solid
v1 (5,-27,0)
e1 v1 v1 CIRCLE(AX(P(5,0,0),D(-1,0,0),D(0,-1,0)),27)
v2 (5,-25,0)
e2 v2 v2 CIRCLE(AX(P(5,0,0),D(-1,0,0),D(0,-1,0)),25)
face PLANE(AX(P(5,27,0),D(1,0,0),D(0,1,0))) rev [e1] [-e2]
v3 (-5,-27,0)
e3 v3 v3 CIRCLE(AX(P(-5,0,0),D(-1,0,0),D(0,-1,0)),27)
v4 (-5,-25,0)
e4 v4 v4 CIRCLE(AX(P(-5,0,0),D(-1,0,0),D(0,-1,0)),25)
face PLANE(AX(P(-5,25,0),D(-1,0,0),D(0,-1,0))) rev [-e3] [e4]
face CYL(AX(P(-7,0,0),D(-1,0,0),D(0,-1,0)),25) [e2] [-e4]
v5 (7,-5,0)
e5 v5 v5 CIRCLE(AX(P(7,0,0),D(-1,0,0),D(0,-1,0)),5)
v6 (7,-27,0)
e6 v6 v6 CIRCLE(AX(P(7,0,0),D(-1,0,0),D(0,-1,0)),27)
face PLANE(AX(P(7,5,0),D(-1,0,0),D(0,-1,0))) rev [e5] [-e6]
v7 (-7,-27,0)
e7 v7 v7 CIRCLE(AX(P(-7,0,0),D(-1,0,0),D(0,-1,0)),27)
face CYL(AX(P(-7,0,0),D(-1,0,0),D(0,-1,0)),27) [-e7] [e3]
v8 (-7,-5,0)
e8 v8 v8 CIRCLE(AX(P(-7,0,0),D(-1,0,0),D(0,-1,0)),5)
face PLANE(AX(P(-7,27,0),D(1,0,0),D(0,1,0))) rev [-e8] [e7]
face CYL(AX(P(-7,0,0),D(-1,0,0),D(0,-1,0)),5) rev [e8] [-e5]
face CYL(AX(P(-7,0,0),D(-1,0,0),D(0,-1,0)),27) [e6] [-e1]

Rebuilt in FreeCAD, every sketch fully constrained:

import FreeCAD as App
import Part
import Sketcher

V = App.Vector

doc = App.newDocument("Part")
body = doc.addObject("PartDesign::Body", "Body")

sketch1 = body.newObject("Sketcher::SketchObject", "Sketch")
sketch1.AttachmentSupport = (doc.getObject("XY_Plane"), [""])
sketch1.MapMode = "FlatFace"
sketch1.addGeometry([
    Part.LineSegment(V(7, 5, 0), V(7, 27, 0)),
    Part.LineSegment(V(7, 27, 0), V(5, 27, 0)),
    Part.LineSegment(V(5, 27, 0), V(5, 25, 0)),
    Part.LineSegment(V(5, 25, 0), V(-5, 25, 0)),
    Part.LineSegment(V(-5, 25, 0), V(-5, 27, 0)),
    Part.LineSegment(V(-5, 27, 0), V(-7, 27, 0)),
    Part.LineSegment(V(-7, 27, 0), V(-7, 5, 0)),
    Part.LineSegment(V(-7, 5, 0), V(7, 5, 0)),
], False)
sketch1.addConstraint([
    Sketcher.Constraint("Coincident", 0, 2, 1, 1),
    Sketcher.Constraint("Coincident", 1, 2, 2, 1),
    Sketcher.Constraint("Coincident", 2, 2, 3, 1),
    Sketcher.Constraint("Coincident", 3, 2, 4, 1),
    Sketcher.Constraint("Coincident", 4, 2, 5, 1),
    Sketcher.Constraint("Coincident", 5, 2, 6, 1),
    Sketcher.Constraint("Coincident", 6, 2, 7, 1),
    Sketcher.Constraint("Coincident", 7, 2, 0, 1),
    Sketcher.Constraint("Vertical", 0),
    Sketcher.Constraint("Horizontal", 1),
    Sketcher.Constraint("Vertical", 2),
    Sketcher.Constraint("Horizontal", 3),
    Sketcher.Constraint("Vertical", 4),
    Sketcher.Constraint("Horizontal", 5),
    Sketcher.Constraint("Vertical", 6),
    Sketcher.Constraint("Horizontal", 7),
    Sketcher.Constraint("Symmetric", 1, 2, 4, 2, -2),
    Sketcher.Constraint("Equal", 1, 5),
    Sketcher.Constraint("Equal", 5, 2),
    Sketcher.Constraint("DistanceX", 1, 2, 1, 1, 2.0),
    Sketcher.Constraint("DistanceX", 3, 2, 3, 1, 10.0),
    Sketcher.Constraint("DistanceY", 0, 1, 0, 2, 22.0),
    Sketcher.Constraint("DistanceY", -1, 1, 0, 2, 27.0),
])
revolution = body.newObject("PartDesign::Revolution", "Revolution")
revolution.Profile = sketch1
revolution.ReferenceAxis = (sketch1, ["H_Axis"])
revolution.Angle = 360

doc.recompute()
